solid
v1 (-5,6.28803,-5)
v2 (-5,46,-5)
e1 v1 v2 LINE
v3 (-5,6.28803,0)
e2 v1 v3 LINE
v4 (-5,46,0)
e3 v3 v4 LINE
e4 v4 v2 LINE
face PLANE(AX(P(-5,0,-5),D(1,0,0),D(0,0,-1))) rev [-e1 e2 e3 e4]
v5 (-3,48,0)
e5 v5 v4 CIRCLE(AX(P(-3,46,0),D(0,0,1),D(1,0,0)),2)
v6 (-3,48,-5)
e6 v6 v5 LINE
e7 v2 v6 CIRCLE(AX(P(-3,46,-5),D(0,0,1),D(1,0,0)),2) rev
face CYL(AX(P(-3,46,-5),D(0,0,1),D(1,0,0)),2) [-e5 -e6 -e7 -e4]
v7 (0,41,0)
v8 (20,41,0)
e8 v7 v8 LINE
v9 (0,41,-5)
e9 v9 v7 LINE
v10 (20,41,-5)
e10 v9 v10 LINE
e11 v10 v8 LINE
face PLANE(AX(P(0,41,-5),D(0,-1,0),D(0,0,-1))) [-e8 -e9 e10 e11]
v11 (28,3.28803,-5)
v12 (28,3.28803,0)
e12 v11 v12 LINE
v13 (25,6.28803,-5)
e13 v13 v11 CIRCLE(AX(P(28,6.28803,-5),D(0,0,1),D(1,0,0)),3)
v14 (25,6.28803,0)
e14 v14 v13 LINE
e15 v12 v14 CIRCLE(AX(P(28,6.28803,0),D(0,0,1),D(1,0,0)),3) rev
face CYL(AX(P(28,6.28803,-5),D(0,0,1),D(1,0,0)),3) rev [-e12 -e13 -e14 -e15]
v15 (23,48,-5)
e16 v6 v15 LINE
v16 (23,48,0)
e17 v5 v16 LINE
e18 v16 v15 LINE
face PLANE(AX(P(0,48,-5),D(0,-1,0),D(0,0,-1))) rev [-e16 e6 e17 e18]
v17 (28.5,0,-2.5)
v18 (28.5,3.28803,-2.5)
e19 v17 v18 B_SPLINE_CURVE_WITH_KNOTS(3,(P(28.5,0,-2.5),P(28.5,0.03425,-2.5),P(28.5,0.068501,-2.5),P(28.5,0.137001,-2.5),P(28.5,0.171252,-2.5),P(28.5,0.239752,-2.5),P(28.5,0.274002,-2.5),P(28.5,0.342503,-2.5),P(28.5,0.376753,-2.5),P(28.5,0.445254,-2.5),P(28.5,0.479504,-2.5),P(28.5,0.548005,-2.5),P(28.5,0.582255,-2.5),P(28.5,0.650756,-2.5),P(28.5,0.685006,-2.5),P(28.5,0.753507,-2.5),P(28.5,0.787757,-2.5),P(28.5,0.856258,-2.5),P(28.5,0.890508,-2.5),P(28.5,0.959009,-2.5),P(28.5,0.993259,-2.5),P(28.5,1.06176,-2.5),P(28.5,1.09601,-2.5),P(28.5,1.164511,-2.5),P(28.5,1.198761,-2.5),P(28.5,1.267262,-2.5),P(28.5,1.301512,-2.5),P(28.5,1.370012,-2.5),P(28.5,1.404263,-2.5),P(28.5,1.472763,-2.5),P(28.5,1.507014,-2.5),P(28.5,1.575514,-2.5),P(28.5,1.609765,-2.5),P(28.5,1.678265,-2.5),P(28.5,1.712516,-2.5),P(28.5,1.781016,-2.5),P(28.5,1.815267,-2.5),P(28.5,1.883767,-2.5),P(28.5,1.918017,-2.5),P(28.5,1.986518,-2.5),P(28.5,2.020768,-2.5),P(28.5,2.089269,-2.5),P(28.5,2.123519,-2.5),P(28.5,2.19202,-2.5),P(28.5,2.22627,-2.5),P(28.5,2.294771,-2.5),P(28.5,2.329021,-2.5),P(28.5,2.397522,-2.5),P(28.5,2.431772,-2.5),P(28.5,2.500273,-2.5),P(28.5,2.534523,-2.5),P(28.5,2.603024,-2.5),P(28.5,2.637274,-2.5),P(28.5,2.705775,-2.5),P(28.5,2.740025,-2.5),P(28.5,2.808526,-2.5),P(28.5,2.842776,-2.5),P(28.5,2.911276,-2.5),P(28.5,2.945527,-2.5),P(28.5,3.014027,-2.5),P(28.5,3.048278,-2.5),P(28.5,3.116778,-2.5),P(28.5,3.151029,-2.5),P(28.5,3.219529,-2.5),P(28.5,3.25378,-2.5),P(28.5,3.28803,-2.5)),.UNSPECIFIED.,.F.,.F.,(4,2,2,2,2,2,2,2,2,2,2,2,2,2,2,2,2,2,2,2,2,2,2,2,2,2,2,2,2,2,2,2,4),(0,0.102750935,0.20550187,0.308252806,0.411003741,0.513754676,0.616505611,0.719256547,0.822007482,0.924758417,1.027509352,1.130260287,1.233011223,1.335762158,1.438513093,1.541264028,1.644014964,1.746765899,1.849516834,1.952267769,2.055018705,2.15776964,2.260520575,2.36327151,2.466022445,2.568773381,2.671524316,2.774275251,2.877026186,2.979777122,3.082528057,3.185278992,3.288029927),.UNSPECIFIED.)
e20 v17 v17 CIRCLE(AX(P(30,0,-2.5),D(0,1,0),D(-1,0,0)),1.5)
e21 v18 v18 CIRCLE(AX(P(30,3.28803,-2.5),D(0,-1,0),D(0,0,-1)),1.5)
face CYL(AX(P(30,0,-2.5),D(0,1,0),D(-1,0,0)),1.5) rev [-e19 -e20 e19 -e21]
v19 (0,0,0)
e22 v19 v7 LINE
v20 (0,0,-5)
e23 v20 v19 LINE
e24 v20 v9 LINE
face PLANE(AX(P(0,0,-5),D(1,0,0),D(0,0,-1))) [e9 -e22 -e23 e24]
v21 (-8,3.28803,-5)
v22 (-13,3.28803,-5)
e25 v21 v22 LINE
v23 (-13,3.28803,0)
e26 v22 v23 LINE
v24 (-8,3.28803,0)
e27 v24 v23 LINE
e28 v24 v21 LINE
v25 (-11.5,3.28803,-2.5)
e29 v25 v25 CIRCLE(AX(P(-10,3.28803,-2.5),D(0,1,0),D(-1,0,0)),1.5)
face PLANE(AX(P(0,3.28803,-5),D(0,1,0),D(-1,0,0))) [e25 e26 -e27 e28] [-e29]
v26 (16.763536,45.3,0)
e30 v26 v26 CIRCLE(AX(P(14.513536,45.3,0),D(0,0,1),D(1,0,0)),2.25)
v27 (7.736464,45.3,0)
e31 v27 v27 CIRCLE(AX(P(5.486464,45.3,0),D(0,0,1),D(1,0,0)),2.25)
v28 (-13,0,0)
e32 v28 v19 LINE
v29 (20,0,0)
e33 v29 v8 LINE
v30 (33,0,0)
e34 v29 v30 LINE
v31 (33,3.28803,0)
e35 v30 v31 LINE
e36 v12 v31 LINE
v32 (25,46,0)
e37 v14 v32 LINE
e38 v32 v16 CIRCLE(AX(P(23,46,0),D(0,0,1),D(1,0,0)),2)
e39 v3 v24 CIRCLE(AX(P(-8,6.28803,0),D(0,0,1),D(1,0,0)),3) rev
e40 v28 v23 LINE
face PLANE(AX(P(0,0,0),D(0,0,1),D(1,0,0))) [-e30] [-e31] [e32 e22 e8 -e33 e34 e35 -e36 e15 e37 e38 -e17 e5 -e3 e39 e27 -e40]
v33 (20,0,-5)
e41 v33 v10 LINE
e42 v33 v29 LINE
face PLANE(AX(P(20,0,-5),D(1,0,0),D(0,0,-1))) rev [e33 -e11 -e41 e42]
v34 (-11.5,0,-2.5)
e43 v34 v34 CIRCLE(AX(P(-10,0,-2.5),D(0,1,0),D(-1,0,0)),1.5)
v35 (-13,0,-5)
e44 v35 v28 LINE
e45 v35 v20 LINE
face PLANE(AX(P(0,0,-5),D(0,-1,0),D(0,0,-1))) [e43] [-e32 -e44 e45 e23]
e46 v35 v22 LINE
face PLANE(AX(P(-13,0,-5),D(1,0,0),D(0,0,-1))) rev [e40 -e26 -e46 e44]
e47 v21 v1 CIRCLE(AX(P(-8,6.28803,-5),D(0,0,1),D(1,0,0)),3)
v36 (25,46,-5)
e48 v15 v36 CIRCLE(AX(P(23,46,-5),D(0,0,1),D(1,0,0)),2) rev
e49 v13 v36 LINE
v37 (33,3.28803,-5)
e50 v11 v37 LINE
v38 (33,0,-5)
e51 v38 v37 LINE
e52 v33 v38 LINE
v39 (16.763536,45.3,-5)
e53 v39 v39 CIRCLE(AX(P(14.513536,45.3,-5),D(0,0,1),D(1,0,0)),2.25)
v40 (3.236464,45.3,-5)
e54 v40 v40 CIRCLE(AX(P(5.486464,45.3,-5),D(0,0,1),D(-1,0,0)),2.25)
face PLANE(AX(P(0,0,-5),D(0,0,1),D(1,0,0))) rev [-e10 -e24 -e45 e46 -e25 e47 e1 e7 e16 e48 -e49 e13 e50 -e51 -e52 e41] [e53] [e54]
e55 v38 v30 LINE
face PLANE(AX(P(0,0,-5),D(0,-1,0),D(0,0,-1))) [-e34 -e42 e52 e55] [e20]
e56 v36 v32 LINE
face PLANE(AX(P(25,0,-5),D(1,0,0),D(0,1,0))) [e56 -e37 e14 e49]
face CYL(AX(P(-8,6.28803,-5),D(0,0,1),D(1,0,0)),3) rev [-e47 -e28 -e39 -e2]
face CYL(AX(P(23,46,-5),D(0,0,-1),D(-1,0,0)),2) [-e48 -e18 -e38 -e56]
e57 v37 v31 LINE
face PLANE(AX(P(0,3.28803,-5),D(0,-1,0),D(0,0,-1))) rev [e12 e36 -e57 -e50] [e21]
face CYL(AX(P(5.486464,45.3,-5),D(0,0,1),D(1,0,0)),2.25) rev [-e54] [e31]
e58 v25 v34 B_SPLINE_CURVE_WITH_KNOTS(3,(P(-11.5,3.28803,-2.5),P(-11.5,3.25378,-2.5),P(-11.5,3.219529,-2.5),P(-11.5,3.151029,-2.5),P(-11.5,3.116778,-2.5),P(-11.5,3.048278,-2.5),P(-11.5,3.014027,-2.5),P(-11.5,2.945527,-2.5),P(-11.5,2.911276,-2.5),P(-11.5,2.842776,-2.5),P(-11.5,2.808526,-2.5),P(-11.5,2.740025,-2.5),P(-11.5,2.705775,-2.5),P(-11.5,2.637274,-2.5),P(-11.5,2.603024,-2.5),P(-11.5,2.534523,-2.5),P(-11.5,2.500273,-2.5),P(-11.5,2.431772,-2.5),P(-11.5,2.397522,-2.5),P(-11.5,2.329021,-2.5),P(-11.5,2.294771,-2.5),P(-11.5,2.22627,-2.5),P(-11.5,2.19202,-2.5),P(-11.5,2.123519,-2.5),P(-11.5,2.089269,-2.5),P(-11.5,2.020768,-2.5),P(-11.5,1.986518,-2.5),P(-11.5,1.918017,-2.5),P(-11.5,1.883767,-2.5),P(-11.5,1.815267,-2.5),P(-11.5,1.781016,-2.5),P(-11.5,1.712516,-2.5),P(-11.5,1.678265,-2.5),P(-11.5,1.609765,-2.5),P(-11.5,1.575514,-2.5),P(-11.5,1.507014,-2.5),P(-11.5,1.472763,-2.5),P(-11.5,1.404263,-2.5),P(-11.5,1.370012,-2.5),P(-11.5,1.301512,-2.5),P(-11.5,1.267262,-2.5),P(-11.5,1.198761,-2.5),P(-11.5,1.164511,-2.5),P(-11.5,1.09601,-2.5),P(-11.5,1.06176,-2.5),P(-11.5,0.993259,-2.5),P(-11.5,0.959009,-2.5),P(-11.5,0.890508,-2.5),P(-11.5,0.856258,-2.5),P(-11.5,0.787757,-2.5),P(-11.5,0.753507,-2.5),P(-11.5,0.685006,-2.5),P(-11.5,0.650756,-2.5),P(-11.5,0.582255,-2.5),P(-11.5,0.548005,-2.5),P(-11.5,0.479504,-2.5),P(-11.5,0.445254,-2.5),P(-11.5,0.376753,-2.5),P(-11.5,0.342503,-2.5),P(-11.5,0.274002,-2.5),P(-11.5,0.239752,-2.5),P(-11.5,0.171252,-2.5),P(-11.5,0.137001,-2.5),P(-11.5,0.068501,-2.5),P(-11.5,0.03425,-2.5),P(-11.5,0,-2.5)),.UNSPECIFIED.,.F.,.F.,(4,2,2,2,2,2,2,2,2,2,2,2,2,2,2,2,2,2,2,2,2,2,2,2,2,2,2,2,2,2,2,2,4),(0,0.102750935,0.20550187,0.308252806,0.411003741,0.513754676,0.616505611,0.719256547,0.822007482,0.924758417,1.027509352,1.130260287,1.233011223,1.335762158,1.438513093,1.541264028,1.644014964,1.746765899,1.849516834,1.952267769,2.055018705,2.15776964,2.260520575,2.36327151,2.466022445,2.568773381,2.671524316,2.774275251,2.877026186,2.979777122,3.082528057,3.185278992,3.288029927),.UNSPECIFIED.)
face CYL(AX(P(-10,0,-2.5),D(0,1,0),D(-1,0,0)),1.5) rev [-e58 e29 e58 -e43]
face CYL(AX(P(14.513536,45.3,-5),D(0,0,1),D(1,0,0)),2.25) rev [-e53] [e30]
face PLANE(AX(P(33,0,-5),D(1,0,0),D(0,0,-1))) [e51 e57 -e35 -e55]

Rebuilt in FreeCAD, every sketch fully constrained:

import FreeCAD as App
import Part
import Sketcher
from FreeCAD import Vector
Q = App.Units.Quantity


def edges_at(feature, points):
    """Names of the edges that pass closest to the given points."""
    edges = feature.Shape.Edges
    near = lambda p: min(range(len(edges)), key=lambda i: edges[i].distToShape(Part.Vertex(*p))[0])
    return sorted({f"Edge{near(p) + 1}" for p in points})

doc = App.newDocument("Part")
body = doc.addObject("PartDesign::Body", "Body")

sketch1 = doc.addObject("Sketcher::SketchObject", "Sketch")
body.addObject(sketch1)
sketch1.AttachmentSupport = (doc.XY_Plane, [""])
sketch1.MapMode = "FlatFace"
sketch1.addGeometry([
    Part.LineSegment(Vector(0, 41, 0), Vector(20, 41, 0)),
    Part.LineSegment(Vector(20, 41, 0), Vector(20, 0, 0)),
    Part.LineSegment(Vector(20, 0, 0), Vector(33, 0, 0)),
    Part.LineSegment(Vector(33, 0, 0), Vector(33, 3.3, 0)),
    Part.LineSegment(Vector(33, 3.3, 0), Vector(25, 3.3, 0)),
    Part.LineSegment(Vector(25, 3.3, 0), Vector(25, 48, 0)),
    Part.LineSegment(Vector(25, 48, 0), Vector(-5, 48, 0)),
    Part.LineSegment(Vector(-5, 48, 0), Vector(-5, 3.3, 0)),
    Part.LineSegment(Vector(-5, 3.3, 0), Vector(-13, 3.3, 0)),
    Part.LineSegment(Vector(-13, 3.3, 0), Vector(-13, 0, 0)),
    Part.LineSegment(Vector(-13, 0, 0), Vector(0, 0, 0)),
    Part.LineSegment(Vector(0, 0, 0), Vector(0, 41, 0)),
], False)
sketch1.addConstraint([
    Sketcher.Constraint("Coincident", 0, 2, 1, 1),
    Sketcher.Constraint("Coincident", 1, 2, 2, 1),
    Sketcher.Constraint("Coincident", 2, 2, 3, 1),
    Sketcher.Constraint("Coincident", 3, 2, 4, 1),
    Sketcher.Constraint("Coincident", 4, 2, 5, 1),
    Sketcher.Constraint("Coincident", 5, 2, 6, 1),
    Sketcher.Constraint("Coincident", 6, 2, 7, 1),
    Sketcher.Constraint("Coincident", 7, 2, 8, 1),
    Sketcher.Constraint("Coincident", 8, 2, 9, 1),
    Sketcher.Constraint("Coincident", 9, 2, 10, 1),
    Sketcher.Constraint("Coincident", 10, 2, 11, 1),
    Sketcher.Constraint("Coincident", 11, 2, 0, 1),
    Sketcher.Constraint("Horizontal", 0),
    Sketcher.Constraint("Vertical", 1),
    Sketcher.Constraint("Horizontal", 2),
    Sketcher.Constraint("Vertical", 3),
    Sketcher.Constraint("Horizontal", 4),
    Sketcher.Constraint("Vertical", 5),
    Sketcher.Constraint("Horizontal", 6),
    Sketcher.Constraint("Vertical", 7),
    Sketcher.Constraint("Horizontal", 8),
    Sketcher.Constraint("Vertical", 9),
    Sketcher.Constraint("Horizontal", 10),
    Sketcher.Constraint("Vertical", 11),
    Sketcher.Constraint("Coincident", 10, 2, -1, 1),
    Sketcher.Constraint("PointOnObject", 1, 2, -1),
    Sketcher.Constraint("Horizontal", 4, 2, 7, 2),
    Sketcher.Constraint("Equal", 4, 8),
    Sketcher.Constraint("Equal", 2, 10),
    Sketcher.Constraint("DistanceX", 0, 1, 0, 2, Q("20 mm")),
    Sketcher.Constraint("DistanceX", 2, 1, 2, 2, Q("13 mm")),
    Sketcher.Constraint("DistanceX", 4, 2, 4, 1, Q("8 mm")),
    Sketcher.Constraint("DistanceY", 1, 2, 1, 1, Q("41 mm")),
    Sketcher.Constraint("DistanceY", -1, 1, 5, 2, Q("48 mm")),
    Sketcher.Constraint("DistanceY", 3, 1, 3, 2, Q("3.28803 mm")),
])
pad1 = doc.addObject("PartDesign::Pad", "Pad")
body.addObject(pad1)
pad1.Profile = sketch1
pad1.Length = 5
pad1.Reversed = True
doc.recompute()

fillet = doc.addObject("PartDesign::Fillet", "Fillet")
body.addObject(fillet)
fillet.Base = (pad1, edges_at(pad1, [(-5, 48, -2.5), (25, 48, -2.5)]))
fillet.Radius = 2

sketch2 = doc.addObject("Sketcher::SketchObject", "Sketch001")
body.addObject(sketch2)
sketch2.AttachmentSupport = (doc.XZ_Plane, [""])
sketch2.MapMode = "FlatFace"
sketch2.AttachmentOffset = App.Placement(Vector(0, 0, -3.28803), App.Rotation())
sketch2.addGeometry([
    Part.Circle(Vector(-10, -2.5, 0), Vector(0, 0, 1), 1.5),
    Part.Circle(Vector(30, -2.5, 0), Vector(0, 0, 1), 1.5),
], False)
sketch2.addConstraint([
    Sketcher.Constraint("Equal", 0, 1),
    Sketcher.Constraint("Horizontal", 0, 3, 1, 3),
    Sketcher.Constraint("Diameter", 0, Q("3 mm")),
    Sketcher.Constraint("DistanceX", 0, 3, -1, 1, Q("10 mm")),
    Sketcher.Constraint("DistanceX", -1, 1, 1, 3, Q("30 mm")),
    Sketcher.Constraint("DistanceY", 0, 3, -1, 1, Q("2.5 mm")),
])
pocket1 = doc.addObject("PartDesign::Pocket", "Pocket")
body.addObject(pocket1)
pocket1.Profile = sketch2
pocket1.Type = "ThroughAll"
pocket1.Midplane = True

sketch3 = doc.addObject("Sketcher::SketchObject", "Sketch002")
body.addObject(sketch3)
sketch3.AttachmentSupport = (doc.XY_Plane, [""])
sketch3.MapMode = "FlatFace"
sketch3.addGeometry([
    Part.Circle(Vector(14.5, 45.3, 0), Vector(0, 0, 1), 2.2),
    Part.Circle(Vector(5.5, 45.3, 0), Vector(0, 0, 1), 2.2),
], False)
sketch3.addConstraint([
    Sketcher.Constraint("Equal", 0, 1),
    Sketcher.Constraint("Horizontal", 0, 3, 1, 3),
    Sketcher.Constraint("Diameter", 0, Q("4.5 mm")),
    Sketcher.Constraint("DistanceY", -1, 1, 0, 3, Q("45.3 mm")),
    Sketcher.Constraint("DistanceX", -1, 1, 0, 3, Q("14.513536 mm")),
    Sketcher.Constraint("DistanceX", -1, 1, 1, 3, Q("5.486464 mm")),
])
pocket2 = doc.addObject("PartDesign::Pocket", "Pocket001")
body.addObject(pocket2)
pocket2.Profile = sketch3
pocket2.Type = "ThroughAll"
pocket2.Midplane = True
doc.recompute()

fillet2 = doc.addObject("PartDesign::Fillet", "Fillet001")
body.addObject(fillet2)
fillet2.Base = (pocket2, edges_at(pocket2, [(25, 3.288, -2.5), (-5, 3.288, -2.5)]))
fillet2.Radius = 3

doc.recompute()
